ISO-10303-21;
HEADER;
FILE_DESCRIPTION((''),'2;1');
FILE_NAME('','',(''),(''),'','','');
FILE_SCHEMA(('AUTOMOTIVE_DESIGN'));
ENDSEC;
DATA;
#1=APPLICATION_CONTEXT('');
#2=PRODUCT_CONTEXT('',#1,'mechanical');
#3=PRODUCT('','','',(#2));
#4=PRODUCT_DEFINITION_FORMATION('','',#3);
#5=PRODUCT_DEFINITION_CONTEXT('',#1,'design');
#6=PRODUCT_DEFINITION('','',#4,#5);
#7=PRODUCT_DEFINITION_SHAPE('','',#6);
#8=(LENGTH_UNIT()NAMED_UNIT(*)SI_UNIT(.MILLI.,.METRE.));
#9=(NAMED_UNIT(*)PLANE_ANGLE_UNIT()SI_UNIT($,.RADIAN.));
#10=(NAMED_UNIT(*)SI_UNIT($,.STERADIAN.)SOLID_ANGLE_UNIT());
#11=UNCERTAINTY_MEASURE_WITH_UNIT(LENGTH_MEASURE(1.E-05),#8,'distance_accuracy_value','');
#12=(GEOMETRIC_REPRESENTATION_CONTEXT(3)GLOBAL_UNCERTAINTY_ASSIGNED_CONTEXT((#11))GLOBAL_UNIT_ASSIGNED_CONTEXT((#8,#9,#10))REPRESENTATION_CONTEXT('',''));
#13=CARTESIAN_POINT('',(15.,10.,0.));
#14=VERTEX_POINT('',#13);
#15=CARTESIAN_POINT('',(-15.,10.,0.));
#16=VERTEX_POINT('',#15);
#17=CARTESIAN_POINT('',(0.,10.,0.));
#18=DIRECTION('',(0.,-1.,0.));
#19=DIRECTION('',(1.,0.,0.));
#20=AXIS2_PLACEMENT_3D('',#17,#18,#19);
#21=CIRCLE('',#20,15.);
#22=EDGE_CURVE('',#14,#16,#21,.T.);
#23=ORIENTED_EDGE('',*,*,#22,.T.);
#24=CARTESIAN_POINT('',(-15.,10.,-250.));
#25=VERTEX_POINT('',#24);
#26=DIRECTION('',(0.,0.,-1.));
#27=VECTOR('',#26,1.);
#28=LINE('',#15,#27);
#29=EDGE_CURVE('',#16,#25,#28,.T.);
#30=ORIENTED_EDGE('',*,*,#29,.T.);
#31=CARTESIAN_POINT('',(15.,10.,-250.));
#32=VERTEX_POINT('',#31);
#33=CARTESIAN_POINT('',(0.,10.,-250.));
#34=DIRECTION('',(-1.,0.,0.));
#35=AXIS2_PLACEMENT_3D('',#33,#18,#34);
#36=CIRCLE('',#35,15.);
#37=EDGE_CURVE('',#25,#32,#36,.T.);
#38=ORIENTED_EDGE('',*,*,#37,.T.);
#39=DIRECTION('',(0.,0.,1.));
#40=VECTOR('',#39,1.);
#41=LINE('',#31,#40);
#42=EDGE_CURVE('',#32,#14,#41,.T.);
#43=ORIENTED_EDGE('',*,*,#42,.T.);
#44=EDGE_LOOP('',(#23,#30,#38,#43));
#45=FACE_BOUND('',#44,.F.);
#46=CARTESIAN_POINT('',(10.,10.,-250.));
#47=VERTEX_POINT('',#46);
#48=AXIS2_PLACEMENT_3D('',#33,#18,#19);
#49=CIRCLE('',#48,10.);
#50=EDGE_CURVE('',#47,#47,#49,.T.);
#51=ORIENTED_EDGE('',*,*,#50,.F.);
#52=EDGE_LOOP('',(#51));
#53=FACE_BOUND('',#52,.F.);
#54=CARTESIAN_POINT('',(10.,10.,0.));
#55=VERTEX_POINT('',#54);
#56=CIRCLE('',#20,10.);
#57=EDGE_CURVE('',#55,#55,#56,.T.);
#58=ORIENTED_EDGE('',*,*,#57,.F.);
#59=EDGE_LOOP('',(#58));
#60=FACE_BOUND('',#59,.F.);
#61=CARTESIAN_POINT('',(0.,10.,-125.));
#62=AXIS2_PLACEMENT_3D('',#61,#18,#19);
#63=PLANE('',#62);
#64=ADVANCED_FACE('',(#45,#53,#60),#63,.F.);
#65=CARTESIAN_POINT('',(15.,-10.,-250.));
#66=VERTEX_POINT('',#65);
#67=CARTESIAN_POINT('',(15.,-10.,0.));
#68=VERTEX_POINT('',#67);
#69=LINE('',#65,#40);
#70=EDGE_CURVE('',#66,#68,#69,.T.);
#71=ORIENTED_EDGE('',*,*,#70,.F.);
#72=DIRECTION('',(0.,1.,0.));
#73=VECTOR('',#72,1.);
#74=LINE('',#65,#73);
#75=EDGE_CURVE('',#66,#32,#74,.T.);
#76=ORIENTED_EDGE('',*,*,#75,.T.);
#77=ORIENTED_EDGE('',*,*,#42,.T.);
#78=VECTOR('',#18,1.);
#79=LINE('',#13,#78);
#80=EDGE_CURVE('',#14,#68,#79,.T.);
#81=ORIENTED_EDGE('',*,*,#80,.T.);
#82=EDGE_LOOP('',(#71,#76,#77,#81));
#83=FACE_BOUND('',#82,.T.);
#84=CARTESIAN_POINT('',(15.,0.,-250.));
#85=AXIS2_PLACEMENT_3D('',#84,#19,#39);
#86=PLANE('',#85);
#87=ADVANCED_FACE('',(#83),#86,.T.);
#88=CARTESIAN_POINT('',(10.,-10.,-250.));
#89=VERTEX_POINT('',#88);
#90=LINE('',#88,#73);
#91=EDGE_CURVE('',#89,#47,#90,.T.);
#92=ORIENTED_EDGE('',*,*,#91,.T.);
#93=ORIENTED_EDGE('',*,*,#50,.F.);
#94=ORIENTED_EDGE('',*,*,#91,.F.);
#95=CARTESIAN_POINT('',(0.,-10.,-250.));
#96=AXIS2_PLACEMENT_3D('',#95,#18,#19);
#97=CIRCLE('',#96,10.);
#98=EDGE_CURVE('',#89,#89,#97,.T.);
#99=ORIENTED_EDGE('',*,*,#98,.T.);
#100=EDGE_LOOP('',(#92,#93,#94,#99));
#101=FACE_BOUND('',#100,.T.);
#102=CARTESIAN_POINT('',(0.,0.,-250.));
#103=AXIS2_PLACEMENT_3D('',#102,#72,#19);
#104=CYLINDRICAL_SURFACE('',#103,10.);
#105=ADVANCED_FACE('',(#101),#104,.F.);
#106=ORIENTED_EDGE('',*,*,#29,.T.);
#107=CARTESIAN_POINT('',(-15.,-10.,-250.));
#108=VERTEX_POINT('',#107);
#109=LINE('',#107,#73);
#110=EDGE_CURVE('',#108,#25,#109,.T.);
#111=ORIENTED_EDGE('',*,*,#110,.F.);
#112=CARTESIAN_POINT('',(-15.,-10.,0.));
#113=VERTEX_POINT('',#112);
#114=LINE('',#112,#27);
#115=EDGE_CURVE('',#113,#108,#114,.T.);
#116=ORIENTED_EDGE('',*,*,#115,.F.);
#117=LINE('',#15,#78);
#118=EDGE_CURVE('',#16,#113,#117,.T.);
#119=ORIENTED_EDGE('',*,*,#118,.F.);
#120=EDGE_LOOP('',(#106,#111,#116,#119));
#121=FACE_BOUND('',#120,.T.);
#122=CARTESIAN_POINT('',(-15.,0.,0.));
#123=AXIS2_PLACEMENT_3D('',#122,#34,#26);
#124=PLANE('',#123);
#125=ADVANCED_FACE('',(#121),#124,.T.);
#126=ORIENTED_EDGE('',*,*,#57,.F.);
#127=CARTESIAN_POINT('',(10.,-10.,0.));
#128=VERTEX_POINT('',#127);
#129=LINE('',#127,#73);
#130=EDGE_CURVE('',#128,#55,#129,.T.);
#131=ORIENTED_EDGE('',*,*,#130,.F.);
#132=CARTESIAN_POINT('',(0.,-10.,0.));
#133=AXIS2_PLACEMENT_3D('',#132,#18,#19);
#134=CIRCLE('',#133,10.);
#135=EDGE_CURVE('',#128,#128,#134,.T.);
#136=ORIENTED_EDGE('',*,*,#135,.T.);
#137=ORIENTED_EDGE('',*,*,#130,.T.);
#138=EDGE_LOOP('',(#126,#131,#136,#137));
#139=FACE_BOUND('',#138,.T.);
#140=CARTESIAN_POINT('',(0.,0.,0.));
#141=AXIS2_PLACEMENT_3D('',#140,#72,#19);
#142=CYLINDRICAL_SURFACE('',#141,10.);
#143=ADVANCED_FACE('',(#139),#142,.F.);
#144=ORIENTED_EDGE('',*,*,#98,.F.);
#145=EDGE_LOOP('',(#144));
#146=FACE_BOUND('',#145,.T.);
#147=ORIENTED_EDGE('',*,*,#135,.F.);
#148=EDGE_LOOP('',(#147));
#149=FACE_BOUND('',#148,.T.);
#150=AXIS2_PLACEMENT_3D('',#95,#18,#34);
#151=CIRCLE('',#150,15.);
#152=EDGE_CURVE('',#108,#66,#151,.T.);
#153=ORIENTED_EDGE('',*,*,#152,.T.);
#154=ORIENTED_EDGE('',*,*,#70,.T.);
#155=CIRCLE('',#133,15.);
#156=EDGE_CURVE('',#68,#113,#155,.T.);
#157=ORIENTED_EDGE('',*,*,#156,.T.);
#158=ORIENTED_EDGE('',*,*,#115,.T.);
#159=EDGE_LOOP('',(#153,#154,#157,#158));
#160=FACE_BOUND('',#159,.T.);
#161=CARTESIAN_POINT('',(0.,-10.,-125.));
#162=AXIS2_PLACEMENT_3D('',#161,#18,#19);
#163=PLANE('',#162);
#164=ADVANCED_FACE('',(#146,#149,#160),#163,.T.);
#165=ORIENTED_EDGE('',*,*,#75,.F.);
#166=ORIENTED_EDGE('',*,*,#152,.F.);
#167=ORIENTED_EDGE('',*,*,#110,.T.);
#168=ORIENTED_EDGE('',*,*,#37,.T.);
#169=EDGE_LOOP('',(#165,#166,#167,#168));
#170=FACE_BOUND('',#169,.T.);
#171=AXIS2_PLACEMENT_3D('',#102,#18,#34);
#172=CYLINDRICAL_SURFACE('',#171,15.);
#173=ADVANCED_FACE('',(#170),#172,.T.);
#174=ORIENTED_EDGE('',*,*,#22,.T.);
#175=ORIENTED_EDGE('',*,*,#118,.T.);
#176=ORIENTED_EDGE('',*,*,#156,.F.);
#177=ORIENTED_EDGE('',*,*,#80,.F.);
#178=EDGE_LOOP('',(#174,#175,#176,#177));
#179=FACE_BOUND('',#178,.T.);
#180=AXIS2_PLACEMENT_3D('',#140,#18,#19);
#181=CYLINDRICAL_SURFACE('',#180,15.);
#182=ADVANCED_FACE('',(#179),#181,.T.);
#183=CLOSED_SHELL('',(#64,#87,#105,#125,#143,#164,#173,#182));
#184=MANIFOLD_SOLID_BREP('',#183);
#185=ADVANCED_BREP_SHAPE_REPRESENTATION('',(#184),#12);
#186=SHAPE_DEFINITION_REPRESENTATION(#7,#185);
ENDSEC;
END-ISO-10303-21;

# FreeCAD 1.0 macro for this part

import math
import FreeCAD as App
import Part
import Sketcher

V = App.Vector

doc = App.newDocument("Part")
body = doc.addObject("PartDesign::Body", "Body")

# Sketch on XZ plane
sketch1 = body.newObject("Sketcher::SketchObject", "Sketch")
sketch1.AttachmentSupport = (doc.getObject("XZ_Plane"), [""])
sketch1.MapMode = "FlatFace"
sketch1.addGeometry([
    Part.LineSegment(V(15, -250, 0), V(15, 0, 0)),  # 0
    Part.ArcOfCircle(Part.Circle(V(0, 0, 0), V(0, 0, 1), 15), math.radians(0), math.radians(180)),  # 1
    Part.LineSegment(V(-15, 0, 0), V(-15, -250, 0)),  # 2
    Part.ArcOfCircle(Part.Circle(V(0, -250, 0), V(0, 0, 1), 15), math.radians(180), math.radians(360)),  # 3
    Part.Circle(V(0, -250, 0), V(0, 0, 1), 10),  # 4
    Part.Circle(V(0, 0, 0), V(0, 0, 1), 10),  # 5
], False)
sketch1.addConstraint([
    Sketcher.Constraint("Tangent", 0, 2, 1, 1),
    Sketcher.Constraint("Tangent", 1, 2, 2, 1),
    Sketcher.Constraint("Tangent", 2, 2, 3, 1),
    Sketcher.Constraint("Tangent", 3, 2, 0, 1),
    Sketcher.Constraint("Vertical", 0),
    Sketcher.Constraint("Vertical", 2),
    Sketcher.Constraint("Coincident", 1, 3, -1, 1),
    Sketcher.Constraint("Coincident", 5, 3, -1, 1),
    Sketcher.Constraint("Coincident", 4, 3, 3, 3),
    Sketcher.Constraint("Equal", 4, 5),
    Sketcher.Constraint("Diameter", 4, 20.0),
    Sketcher.Constraint("Radius", 1, 15.0),
    Sketcher.Constraint("DistanceY", 0, 1, 0, 2, 250.0),
])
pad1 = body.newObject("PartDesign::Pad", "Pad")
pad1.Profile = sketch1
pad1.Length = 20
pad1.Midplane = True

doc.recompute()
